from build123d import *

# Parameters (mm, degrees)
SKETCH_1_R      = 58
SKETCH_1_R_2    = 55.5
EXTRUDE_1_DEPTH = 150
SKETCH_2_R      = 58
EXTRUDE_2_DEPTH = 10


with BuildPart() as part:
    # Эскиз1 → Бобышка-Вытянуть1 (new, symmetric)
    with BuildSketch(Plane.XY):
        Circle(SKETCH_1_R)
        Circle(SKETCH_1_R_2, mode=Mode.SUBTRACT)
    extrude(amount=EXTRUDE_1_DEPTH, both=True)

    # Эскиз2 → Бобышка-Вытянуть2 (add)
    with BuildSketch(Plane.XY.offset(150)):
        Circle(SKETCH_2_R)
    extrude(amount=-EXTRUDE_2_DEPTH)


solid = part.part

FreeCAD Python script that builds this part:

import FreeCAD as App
import Part
import Sketcher

V = App.Vector
Q = App.Units.Quantity

doc = App.newDocument("Part")
body = doc.addObject("PartDesign::Body", "Body")

sketch1 = body.newObject("Sketcher::SketchObject", "Sketch")
sketch1.AttachmentSupport = (doc.getObject("XY_Plane"), [""])
sketch1.MapMode = "FlatFace"
sketch1.addGeometry(Part.Circle(V(0, 0, 0), V(0, 0, 1), 58), False)
sketch1.addGeometry(Part.Circle(V(0, 0, 0), V(0, 0, 1), 56), False)
sketch1.addConstraint(Sketcher.Constraint("Coincident", 0, 3, -1, 1))
sketch1.addConstraint(Sketcher.Constraint("Coincident", 1, 3, -1, 1))
sketch1.addConstraint(Sketcher.Constraint("Diameter", 0, Q("116 mm")))
sketch1.addConstraint(Sketcher.Constraint("Diameter", 1, Q("111 mm")))
pad1 = body.newObject("PartDesign::Pad", "Pad")
pad1.Profile = sketch1
pad1.Length = 300
pad1.Midplane = True

sketch2 = body.newObject("Sketcher::SketchObject", "Sketch001")
sketch2.AttachmentSupport = (doc.getObject("XY_Plane"), [""])
sketch2.MapMode = "FlatFace"
sketch2.AttachmentOffset = App.Placement(V(0, 0, 150), App.Rotation())
sketch2.addGeometry(Part.Circle(V(0, 0, 0), V(0, 0, 1), 58), False)
sketch2.addConstraint(Sketcher.Constraint("Coincident", 0, 3, -1, 1))
sketch2.addConstraint(Sketcher.Constraint("Diameter", 0, Q("116 mm")))
pad2 = body.newObject("PartDesign::Pad", "Pad001")
pad2.Profile = sketch2
pad2.Length = 10
pad2.Reversed = True

doc.recompute()
